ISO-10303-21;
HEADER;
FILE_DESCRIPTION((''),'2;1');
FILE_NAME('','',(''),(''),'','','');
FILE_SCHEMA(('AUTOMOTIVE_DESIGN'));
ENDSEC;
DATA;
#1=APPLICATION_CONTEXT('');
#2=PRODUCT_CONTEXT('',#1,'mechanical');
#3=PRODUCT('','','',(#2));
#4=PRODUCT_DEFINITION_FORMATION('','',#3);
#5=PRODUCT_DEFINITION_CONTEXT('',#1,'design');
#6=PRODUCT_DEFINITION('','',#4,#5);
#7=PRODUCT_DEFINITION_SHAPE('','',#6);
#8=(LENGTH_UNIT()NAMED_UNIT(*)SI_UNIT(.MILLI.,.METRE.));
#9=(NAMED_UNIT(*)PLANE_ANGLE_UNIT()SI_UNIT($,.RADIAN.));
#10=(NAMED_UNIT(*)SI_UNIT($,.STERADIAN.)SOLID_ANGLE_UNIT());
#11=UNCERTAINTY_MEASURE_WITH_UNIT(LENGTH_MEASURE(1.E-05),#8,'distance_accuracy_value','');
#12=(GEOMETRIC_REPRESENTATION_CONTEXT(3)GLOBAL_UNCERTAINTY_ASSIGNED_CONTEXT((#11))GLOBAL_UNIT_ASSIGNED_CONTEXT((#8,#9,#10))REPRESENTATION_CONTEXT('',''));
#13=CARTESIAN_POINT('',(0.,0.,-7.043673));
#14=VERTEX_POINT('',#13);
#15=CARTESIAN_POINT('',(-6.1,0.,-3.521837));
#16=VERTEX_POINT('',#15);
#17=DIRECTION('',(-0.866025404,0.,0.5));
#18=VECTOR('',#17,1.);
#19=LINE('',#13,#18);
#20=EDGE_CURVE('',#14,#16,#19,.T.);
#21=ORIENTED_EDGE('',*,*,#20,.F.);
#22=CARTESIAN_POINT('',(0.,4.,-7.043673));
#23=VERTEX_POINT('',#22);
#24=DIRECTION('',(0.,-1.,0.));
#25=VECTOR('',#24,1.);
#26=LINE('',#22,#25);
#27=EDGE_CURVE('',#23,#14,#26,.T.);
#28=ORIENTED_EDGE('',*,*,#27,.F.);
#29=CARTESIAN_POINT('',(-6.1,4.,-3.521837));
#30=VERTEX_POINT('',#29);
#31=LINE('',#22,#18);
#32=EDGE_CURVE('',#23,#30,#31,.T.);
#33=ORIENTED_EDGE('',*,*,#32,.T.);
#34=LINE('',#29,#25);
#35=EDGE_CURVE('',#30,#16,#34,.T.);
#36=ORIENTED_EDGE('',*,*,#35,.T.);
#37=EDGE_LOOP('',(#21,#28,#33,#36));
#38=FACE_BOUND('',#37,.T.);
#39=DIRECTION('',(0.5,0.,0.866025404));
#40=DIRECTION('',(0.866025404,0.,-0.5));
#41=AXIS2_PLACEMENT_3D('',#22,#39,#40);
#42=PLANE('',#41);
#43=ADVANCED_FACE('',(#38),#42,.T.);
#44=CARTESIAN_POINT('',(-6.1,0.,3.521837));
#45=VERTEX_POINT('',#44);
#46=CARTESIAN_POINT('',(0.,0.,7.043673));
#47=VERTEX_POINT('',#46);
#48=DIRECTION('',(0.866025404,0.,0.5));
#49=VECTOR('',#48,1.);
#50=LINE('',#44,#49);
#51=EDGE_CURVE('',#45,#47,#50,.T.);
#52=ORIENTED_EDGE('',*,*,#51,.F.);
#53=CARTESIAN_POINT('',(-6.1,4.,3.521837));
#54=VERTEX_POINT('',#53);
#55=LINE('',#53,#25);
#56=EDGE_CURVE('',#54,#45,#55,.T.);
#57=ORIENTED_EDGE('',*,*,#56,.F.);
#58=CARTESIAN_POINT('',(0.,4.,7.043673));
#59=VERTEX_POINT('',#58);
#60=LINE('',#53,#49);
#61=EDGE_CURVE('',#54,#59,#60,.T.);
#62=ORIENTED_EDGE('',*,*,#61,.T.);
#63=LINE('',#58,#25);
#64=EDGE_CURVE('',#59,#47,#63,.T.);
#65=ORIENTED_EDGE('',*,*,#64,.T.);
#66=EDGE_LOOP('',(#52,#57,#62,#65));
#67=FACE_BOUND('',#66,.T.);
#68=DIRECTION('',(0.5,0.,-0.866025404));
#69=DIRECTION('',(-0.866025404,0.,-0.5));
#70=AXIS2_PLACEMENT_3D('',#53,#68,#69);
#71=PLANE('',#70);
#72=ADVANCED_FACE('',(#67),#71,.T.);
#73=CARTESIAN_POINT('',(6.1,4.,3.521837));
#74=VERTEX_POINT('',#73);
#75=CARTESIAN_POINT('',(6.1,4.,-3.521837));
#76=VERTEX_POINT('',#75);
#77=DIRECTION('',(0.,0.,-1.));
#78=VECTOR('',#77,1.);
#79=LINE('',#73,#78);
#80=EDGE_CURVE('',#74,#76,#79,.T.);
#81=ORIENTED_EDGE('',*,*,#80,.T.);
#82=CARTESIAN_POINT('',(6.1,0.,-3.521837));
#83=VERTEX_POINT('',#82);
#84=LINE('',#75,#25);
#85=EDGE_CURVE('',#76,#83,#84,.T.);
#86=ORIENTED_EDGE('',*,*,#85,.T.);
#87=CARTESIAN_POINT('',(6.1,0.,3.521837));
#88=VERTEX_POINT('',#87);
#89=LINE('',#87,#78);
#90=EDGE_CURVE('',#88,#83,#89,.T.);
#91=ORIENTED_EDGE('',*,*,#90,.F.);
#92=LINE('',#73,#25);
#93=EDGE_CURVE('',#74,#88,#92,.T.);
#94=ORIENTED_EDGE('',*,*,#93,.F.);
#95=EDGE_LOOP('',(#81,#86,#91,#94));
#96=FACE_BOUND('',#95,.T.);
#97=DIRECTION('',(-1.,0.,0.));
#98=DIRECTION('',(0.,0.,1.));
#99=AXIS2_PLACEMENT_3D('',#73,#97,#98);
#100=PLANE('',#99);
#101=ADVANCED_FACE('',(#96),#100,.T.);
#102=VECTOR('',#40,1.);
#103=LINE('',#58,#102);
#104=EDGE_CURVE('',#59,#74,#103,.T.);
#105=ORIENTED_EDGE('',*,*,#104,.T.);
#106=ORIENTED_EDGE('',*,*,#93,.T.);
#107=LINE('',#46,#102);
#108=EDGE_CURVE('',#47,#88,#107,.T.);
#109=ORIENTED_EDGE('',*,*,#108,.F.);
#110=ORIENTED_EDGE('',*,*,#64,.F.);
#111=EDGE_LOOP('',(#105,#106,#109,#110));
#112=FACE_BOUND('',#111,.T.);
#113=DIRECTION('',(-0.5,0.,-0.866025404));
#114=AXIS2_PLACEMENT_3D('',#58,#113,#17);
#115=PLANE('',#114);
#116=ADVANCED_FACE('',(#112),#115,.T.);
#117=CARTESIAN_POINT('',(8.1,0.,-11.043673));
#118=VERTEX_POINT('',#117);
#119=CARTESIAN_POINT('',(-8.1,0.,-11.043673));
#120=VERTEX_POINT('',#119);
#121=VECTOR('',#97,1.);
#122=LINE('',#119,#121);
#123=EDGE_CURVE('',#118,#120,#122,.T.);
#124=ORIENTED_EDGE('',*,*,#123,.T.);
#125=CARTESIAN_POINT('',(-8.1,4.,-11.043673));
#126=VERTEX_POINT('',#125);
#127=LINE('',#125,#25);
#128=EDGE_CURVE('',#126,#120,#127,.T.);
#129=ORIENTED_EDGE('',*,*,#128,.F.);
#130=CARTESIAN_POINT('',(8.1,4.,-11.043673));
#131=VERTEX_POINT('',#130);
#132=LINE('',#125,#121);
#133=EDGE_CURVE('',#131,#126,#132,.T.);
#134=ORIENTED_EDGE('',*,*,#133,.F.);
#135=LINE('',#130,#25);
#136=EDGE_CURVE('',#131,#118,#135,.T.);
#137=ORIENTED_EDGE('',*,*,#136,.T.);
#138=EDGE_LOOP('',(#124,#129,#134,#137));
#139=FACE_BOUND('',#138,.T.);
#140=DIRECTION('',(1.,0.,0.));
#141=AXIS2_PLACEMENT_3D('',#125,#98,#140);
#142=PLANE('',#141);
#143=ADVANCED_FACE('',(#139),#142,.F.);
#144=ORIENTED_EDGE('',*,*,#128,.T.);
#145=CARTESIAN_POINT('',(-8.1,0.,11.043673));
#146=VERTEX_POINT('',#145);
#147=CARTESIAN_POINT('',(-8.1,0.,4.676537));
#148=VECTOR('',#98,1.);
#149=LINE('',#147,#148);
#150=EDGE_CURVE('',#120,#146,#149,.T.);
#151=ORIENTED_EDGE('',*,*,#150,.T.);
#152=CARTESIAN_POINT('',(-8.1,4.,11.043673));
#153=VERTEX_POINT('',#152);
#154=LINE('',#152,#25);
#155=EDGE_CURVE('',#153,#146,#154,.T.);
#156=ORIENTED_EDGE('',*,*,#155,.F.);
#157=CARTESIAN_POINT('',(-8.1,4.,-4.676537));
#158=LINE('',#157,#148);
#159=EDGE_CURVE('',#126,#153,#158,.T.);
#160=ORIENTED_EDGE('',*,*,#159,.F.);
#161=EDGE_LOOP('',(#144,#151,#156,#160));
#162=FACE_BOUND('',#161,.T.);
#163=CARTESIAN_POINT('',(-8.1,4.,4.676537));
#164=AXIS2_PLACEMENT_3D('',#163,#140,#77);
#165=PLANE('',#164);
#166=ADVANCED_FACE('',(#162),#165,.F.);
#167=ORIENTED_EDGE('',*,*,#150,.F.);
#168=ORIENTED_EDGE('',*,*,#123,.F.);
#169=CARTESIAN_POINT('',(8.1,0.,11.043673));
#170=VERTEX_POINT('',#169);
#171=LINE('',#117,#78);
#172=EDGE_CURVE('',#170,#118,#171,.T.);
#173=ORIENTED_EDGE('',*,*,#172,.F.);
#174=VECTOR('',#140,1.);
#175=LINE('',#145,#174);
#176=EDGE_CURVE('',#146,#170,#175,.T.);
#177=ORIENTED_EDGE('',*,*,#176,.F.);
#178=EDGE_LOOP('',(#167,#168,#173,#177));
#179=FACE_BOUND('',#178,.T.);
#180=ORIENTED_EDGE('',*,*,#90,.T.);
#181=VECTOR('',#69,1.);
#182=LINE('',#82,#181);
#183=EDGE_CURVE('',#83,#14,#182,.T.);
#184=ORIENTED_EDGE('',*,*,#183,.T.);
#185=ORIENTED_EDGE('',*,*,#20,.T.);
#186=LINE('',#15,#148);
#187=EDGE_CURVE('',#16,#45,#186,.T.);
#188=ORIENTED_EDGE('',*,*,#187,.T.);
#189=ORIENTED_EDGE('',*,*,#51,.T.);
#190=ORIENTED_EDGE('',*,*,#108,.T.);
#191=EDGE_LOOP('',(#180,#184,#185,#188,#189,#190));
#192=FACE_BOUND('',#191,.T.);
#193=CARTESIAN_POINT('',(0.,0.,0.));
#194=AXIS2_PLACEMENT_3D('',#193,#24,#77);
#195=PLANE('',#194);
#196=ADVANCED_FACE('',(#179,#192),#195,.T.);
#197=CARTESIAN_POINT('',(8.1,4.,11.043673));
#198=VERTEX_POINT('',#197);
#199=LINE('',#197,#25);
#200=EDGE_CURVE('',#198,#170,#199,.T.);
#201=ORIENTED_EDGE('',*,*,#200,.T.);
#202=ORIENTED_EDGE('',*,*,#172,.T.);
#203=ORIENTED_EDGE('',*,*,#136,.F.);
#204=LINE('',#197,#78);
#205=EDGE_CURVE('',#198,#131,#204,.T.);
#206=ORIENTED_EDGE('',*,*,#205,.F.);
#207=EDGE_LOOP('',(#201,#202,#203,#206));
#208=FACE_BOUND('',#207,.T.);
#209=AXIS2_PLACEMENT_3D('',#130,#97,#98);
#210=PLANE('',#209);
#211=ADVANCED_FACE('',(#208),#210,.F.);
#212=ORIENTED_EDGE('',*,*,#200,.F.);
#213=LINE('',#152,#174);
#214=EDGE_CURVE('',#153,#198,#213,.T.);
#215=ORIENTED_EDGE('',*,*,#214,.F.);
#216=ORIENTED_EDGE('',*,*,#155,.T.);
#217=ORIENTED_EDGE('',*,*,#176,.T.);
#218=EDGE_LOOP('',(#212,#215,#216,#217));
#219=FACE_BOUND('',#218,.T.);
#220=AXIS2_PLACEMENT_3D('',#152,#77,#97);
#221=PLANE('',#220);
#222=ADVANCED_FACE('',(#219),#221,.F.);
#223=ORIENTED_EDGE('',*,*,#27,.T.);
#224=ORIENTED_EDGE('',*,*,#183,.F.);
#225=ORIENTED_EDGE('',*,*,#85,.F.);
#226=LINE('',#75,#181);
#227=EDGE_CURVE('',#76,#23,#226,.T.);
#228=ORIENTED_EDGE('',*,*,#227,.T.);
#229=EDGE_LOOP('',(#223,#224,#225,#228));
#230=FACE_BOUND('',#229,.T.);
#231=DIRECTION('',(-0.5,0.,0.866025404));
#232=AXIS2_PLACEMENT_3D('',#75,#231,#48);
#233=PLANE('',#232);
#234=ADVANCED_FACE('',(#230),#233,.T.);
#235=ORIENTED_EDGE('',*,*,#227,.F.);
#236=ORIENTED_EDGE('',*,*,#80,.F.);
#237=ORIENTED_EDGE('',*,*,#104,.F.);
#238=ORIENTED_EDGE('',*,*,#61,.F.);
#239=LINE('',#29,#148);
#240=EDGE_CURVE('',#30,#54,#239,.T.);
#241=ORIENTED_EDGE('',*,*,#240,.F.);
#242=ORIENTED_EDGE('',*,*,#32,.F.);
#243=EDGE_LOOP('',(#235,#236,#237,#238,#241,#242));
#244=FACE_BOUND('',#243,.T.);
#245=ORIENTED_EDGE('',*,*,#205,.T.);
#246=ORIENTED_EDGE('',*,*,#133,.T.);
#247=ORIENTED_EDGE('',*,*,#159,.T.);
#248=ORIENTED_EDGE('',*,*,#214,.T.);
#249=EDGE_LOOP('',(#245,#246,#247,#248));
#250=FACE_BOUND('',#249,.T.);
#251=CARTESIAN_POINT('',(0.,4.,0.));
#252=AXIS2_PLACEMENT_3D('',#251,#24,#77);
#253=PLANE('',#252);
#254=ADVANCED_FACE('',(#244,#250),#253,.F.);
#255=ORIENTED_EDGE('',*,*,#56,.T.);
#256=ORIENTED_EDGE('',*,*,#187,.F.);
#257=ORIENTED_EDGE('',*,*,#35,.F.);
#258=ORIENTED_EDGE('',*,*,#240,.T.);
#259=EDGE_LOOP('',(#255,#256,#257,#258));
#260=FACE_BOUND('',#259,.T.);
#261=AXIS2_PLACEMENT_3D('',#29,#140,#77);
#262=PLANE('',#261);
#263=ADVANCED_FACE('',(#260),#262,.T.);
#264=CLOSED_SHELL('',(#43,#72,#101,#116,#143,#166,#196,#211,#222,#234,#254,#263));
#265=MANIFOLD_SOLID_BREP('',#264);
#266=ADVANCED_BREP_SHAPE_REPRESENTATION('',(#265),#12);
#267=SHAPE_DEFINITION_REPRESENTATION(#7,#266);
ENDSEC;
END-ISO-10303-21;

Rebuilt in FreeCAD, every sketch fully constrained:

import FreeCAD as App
import Part
import Sketcher
from FreeCAD import Vector
Q = App.Units.Quantity

doc = App.newDocument("Part")
params = doc.addObject("Spreadsheet::Sheet", "Params")
for row, (alias, value) in enumerate([
    ("sketch1_width", "16.2 mm"),
    ("pad1_length", "4 mm"),
], start=1):
    params.set(f"A{row}", alias)
    params.set(f"B{row}", "=" + value)
    params.setAlias(f"B{row}", alias)

body = doc.addObject("PartDesign::Body", "Body")

# Sketch on XZ plane
sketch1 = doc.addObject("Sketcher::SketchObject", "Sketch")
body.addObject(sketch1)
sketch1.AttachmentSupport = (doc.XZ_Plane, [""])
sketch1.MapMode = "FlatFace"
sketch1.addGeometry([
    Part.LineSegment(Vector(-8, 11, 0), Vector(8, 11, 0)),  # 0
    Part.LineSegment(Vector(8, 11, 0), Vector(8, -11, 0)),  # 1
    Part.LineSegment(Vector(8, -11, 0), Vector(-8, -11, 0)),  # 2
    Part.LineSegment(Vector(-8, -11, 0), Vector(-8, 11, 0)),  # 3
    Part.LineSegment(Vector(-6, -4, 0), Vector(0, -7, 0)),  # 4
    Part.LineSegment(Vector(0, -7, 0), Vector(6, -4, 0)),  # 5
    Part.LineSegment(Vector(6, -4, 0), Vector(6, 4, 0)),  # 6
    Part.LineSegment(Vector(6, 4, 0), Vector(0, 7, 0)),  # 7
    Part.LineSegment(Vector(0, 7, 0), Vector(-6, 4, 0)),  # 8
    Part.LineSegment(Vector(-6, 4, 0), Vector(-6, -4, 0)),  # 9
], False)
sketch1.addConstraint([
    Sketcher.Constraint("Coincident", 0, 2, 1, 1),
    Sketcher.Constraint("Coincident", 1, 2, 2, 1),
    Sketcher.Constraint("Coincident", 2, 2, 3, 1),
    Sketcher.Constraint("Coincident", 3, 2, 0, 1),
    Sketcher.Constraint("Coincident", 4, 2, 5, 1),
    Sketcher.Constraint("Coincident", 5, 2, 6, 1),
    Sketcher.Constraint("Coincident", 6, 2, 7, 1),
    Sketcher.Constraint("Coincident", 7, 2, 8, 1),
    Sketcher.Constraint("Coincident", 8, 2, 9, 1),
    Sketcher.Constraint("Coincident", 9, 2, 4, 1),
    Sketcher.Constraint("Horizontal", 0),
    Sketcher.Constraint("Vertical", 1),
    Sketcher.Constraint("Horizontal", 2),
    Sketcher.Constraint("Vertical", 3),
    Sketcher.Constraint("Vertical", 6),
    Sketcher.Constraint("Vertical", 9),
    Sketcher.Constraint("Symmetric", 0, 2, 2, 2, -1, 1),
    Sketcher.Constraint("Symmetric", 4, 2, 7, 2, -1, 1),
    Sketcher.Constraint("Symmetric", 5, 2, 8, 2, -1, 1),
    Sketcher.Constraint("PointOnObject", 4, 2, -2),
    Sketcher.Constraint("Parallel", 4, 7),
    Sketcher.Constraint("Horizontal", 6, 2, 8, 2),
    Sketcher.Constraint("Angle", 4, Q("-30 deg")),
    Sketcher.Constraint("DistanceX", 0, 1, 0, 2, 16.2),
    Sketcher.Constraint("DistanceY", 1, 2, 4, 2, 4.0),
    Sketcher.Constraint("DistanceX", 5, 2, 1, 2, 2.0),
    Sketcher.Constraint("DistanceY", 1, 2, 1, 1, 22.087347),
])
sketch1.setExpression("Constraints[23]", "Params.sketch1_width")
pad1 = doc.addObject("PartDesign::Pad", "Pad")
body.addObject(pad1)
pad1.Profile = sketch1
pad1.setExpression("Length", "Params.pad1_length")
pad1.Reversed = True

doc.recompute()
